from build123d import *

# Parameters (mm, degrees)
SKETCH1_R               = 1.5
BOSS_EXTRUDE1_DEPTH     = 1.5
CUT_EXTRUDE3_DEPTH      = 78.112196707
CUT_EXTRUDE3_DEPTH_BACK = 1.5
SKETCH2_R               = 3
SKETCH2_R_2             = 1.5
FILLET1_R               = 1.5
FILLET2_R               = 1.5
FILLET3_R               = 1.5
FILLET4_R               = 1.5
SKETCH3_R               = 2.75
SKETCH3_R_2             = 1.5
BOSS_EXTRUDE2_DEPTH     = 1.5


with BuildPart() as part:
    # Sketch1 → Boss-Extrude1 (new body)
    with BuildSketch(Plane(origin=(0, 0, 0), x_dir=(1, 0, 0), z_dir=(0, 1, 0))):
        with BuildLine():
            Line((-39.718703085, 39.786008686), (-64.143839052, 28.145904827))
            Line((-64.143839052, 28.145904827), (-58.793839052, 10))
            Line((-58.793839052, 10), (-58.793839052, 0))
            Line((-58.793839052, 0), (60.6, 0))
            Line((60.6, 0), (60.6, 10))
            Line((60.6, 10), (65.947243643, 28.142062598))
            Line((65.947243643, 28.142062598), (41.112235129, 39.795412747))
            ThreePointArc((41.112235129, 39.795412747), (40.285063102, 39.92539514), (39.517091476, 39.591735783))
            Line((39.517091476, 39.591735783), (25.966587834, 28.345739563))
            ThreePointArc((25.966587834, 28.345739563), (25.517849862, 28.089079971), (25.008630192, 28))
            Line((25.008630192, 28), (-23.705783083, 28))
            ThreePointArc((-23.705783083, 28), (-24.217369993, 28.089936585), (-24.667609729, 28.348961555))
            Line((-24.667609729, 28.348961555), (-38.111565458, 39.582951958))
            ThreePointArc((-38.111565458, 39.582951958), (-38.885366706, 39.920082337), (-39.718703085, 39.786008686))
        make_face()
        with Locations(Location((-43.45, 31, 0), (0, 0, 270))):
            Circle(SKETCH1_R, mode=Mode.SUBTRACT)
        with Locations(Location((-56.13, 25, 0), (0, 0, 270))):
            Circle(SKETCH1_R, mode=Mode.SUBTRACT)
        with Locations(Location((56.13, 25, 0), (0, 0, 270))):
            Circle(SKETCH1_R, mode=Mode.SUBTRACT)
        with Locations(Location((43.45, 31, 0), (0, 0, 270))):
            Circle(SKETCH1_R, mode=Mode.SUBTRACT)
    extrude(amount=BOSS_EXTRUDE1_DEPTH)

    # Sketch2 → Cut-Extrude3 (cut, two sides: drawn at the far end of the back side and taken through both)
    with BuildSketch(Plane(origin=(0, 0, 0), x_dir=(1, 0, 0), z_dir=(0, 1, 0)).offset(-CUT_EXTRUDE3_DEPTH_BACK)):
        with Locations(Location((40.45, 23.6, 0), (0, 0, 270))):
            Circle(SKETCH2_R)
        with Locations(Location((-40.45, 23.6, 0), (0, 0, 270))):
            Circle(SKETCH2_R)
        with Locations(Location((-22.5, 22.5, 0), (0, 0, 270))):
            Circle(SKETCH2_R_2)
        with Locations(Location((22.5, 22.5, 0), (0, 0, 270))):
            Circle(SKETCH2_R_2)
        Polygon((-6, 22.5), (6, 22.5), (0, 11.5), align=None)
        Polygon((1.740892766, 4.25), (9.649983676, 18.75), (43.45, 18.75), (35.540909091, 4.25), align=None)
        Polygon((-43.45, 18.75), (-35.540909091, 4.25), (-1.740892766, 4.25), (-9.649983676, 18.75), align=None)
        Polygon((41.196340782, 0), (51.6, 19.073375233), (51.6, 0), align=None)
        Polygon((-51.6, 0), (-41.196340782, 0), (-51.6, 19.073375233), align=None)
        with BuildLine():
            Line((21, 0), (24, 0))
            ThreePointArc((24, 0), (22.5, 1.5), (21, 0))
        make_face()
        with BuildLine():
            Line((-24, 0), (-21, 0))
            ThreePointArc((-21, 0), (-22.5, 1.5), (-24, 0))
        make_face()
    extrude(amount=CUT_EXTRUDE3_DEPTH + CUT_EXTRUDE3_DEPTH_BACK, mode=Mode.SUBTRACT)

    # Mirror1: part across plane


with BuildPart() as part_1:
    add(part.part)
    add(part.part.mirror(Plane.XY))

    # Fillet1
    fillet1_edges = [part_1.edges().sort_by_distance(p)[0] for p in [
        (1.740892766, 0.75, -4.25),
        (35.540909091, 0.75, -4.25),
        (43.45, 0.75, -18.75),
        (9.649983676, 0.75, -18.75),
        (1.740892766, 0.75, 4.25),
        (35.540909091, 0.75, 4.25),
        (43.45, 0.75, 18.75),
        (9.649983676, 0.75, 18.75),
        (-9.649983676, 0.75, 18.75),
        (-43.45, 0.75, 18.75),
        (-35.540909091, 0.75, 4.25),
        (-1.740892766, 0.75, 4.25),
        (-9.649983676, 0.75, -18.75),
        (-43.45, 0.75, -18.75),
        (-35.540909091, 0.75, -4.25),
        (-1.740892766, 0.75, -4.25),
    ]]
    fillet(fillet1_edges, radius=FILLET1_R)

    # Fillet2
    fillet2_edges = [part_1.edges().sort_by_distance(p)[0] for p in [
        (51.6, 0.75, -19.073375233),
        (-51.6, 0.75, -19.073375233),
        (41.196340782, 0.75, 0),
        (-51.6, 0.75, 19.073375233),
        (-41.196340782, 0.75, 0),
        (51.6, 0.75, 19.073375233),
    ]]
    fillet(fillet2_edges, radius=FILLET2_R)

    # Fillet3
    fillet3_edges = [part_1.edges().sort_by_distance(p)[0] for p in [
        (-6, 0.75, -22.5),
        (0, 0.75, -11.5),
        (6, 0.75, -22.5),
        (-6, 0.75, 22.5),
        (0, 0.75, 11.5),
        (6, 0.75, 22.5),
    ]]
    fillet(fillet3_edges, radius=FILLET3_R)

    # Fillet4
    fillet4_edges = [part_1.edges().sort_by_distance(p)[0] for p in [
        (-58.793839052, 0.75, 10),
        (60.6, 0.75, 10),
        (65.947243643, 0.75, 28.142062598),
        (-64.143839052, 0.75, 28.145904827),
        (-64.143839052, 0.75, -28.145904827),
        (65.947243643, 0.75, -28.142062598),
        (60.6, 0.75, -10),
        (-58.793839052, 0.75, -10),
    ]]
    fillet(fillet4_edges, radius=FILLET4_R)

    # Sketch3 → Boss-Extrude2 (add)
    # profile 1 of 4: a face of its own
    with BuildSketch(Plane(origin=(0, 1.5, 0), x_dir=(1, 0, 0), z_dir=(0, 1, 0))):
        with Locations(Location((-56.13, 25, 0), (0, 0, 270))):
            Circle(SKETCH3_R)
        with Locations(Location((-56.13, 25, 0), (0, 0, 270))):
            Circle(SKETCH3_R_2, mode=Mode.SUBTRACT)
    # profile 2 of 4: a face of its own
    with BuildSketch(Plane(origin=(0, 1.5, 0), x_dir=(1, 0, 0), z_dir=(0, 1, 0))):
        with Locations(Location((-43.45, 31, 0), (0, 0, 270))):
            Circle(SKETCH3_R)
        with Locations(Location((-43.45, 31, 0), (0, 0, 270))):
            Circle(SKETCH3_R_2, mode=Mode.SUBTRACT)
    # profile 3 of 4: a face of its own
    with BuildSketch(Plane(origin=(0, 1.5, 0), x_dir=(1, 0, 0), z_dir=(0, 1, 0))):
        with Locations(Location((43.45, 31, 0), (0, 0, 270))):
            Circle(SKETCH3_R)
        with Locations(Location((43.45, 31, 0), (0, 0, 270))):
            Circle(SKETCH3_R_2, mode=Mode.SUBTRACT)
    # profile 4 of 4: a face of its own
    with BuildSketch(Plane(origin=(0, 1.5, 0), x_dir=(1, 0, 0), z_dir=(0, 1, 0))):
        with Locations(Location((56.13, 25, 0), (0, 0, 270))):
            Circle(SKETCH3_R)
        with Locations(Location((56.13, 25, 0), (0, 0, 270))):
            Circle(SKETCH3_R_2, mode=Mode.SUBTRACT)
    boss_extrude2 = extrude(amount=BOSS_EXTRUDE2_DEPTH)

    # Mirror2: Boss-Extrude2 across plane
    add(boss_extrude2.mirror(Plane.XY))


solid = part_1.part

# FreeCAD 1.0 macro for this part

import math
import FreeCAD as App
import Part
import Sketcher
from FreeCAD import Vector


def edges_at(feature, points):
    """Names of the edges that pass closest to the given points."""
    edges = feature.Shape.Edges
    near = lambda p: min(range(len(edges)), key=lambda i: edges[i].distToShape(Part.Vertex(*p))[0])
    return sorted({f"Edge{near(p) + 1}" for p in points})


def add_polygon(sketch, points):
    """Adds a closed chain of lines whose ends are joined by coincident constraints."""
    first, n = sketch.GeometryCount, len(points)
    for a, b in zip(points, points[1:] + points[:1]):
        sketch.addGeometry(Part.LineSegment(App.Vector(*a, 0), App.Vector(*b, 0)), False)
    for i in range(n):
        sketch.addConstraint(Sketcher.Constraint("Coincident", first + i, 2, first + (i + 1) % n, 1))

doc = App.newDocument("Part")
params = doc.addObject("Spreadsheet::Sheet", "Params")
for row, (alias, value) in enumerate([
    ("sketch1_diameter", "3 mm"),
    ("sketch1_height", "10 mm"),
    ("pad1_length", "1.5 mm"),
    ("sketch2_diameter", "6 mm"),
    ("sketch2_diameter2", "3 mm"),
    ("sketch2_width", "12 mm"),
    ("fillet_radius", "1.5 mm"),
    ("fillet2_radius", "1.5 mm"),
    ("fillet3_radius", "1.5 mm"),
    ("fillet4_radius", "1.5 mm"),
    ("sketch3_diameter", "3 mm"),
    ("sketch3_diameter2", "5.5 mm"),
    ("pad2_length", "1.5 mm"),
], start=1):
    params.set(f"A{row}", alias)
    params.set(f"B{row}", "=" + value)
    params.setAlias(f"B{row}", alias)

body = doc.addObject("PartDesign::Body", "Body")

# Sketch on XZ plane
sketch1 = body.newObject("Sketcher::SketchObject", "Sketch")
sketch1.AttachmentSupport = (doc.getObject("XZ_Plane"), [""])
sketch1.MapMode = "FlatFace"
sketch1.addGeometry([
    Part.LineSegment(Vector(-39.7, -39.8, 0), Vector(-64.1, -28.1, 0)),  # 0
    Part.LineSegment(Vector(-64.1, -28.1, 0), Vector(-58.8, -10, 0)),  # 1
    Part.LineSegment(Vector(-58.8, -10, 0), Vector(-58.8, 0, 0)),  # 2
    Part.LineSegment(Vector(-58.8, 0, 0), Vector(60.6, 0, 0)),  # 3
    Part.LineSegment(Vector(60.6, 0, 0), Vector(60.6, -10, 0)),  # 4
    Part.LineSegment(Vector(60.6, -10, 0), Vector(65.9, -28.1, 0)),  # 5
    Part.LineSegment(Vector(65.9, -28.1, 0), Vector(41.1, -39.8, 0)),  # 6
    Part.ArcOfCircle(Part.Circle(Vector(40.5, -38.4, 0), Vector(0, 0, 1), 1.5), math.radians(-130), math.radians(-65)),  # 7
    Part.LineSegment(Vector(39.5, -39.6, 0), Vector(26, -28.3, 0)),  # 8
    Part.ArcOfCircle(Part.Circle(Vector(25, -29.5, 0), Vector(0, 0, 1), 1.5), math.radians(50), math.radians(90)),  # 9
    Part.LineSegment(Vector(25, -28, 0), Vector(-23.7, -28, 0)),  # 10
    Part.ArcOfCircle(Part.Circle(Vector(-23.7, -29.5, 0), Vector(0, 0, 1), 1.5), math.radians(90), math.radians(130)),  # 11
    Part.LineSegment(Vector(-24.7, -28.3, 0), Vector(-38.1, -39.6, 0)),  # 12
    Part.ArcOfCircle(Part.Circle(Vector(-39.1, -38.4, 0), Vector(0, 0, 1), 1.5), math.radians(-115), math.radians(-50)),  # 13
    Part.Circle(Vector(-56.1, -25, 0), Vector(0, 0, 1), 1.5),  # 14
    Part.Circle(Vector(56.1, -25, 0), Vector(0, 0, 1), 1.5),  # 15
    Part.Circle(Vector(-43.5, -31, 0), Vector(0, 0, 1), 1.5),  # 16
    Part.Circle(Vector(43.5, -31, 0), Vector(0, 0, 1), 1.5),  # 17
], False)
sketch1.addConstraint([
    Sketcher.Constraint("Coincident", 0, 2, 1, 1),
    Sketcher.Constraint("Coincident", 1, 2, 2, 1),
    Sketcher.Constraint("Coincident", 2, 2, 3, 1),
    Sketcher.Constraint("Coincident", 3, 2, 4, 1),
    Sketcher.Constraint("Coincident", 4, 2, 5, 1),
    Sketcher.Constraint("Coincident", 5, 2, 6, 1),
    Sketcher.Constraint("Tangent", 6, 2, 7, 2),
    Sketcher.Constraint("Tangent", 7, 1, 8, 1),
    Sketcher.Constraint("Tangent", 8, 2, 9, 1),
    Sketcher.Constraint("Tangent", 9, 2, 10, 1),
    Sketcher.Constraint("Tangent", 10, 2, 11, 1),
    Sketcher.Constraint("Tangent", 11, 2, 12, 1),
    Sketcher.Constraint("Tangent", 12, 2, 13, 2),
    Sketcher.Constraint("Tangent", 13, 1, 0, 1),
    Sketcher.Constraint("Vertical", 2),
    Sketcher.Constraint("Horizontal", 3),
    Sketcher.Constraint("Vertical", 4),
    Sketcher.Constraint("Horizontal", 10),
    Sketcher.Constraint("Equal", 7, 9),
    Sketcher.Constraint("Equal", 9, 11),
    Sketcher.Constraint("Equal", 11, 13),
    Sketcher.Constraint("Equal", 13, 14),
    Sketcher.Constraint("Equal", 14, 15),
    Sketcher.Constraint("Equal", 15, 16),
    Sketcher.Constraint("Equal", 16, 17),
    Sketcher.Constraint("Symmetric", 14, 3, 15, 3, -2),
    Sketcher.Constraint("Symmetric", 16, 3, 17, 3, -2),
    Sketcher.Constraint("PointOnObject", 2, 2, -1),
    Sketcher.Constraint("Horizontal", 1, 2, 4, 2),
    Sketcher.Constraint("Diameter", 14, 3.0),
    Sketcher.Constraint("DistanceY", 2, 1, 2, 2, 10.0),
    Sketcher.Constraint("DistanceY", 14, 3, -1, 1, 25.0),
    Sketcher.Constraint("DistanceY", 16, 3, -1, 1, 31.0),
    Sketcher.Constraint("DistanceY", 9, 2, -1, 1, 28.0),
    Sketcher.Constraint("DistanceX", -1, 1, 3, 2, 60.6),
    Sketcher.Constraint("DistanceX", 14, 3, -1, 1, 56.13),
    Sketcher.Constraint("DistanceX", 16, 3, -1, 1, 43.45),
    Sketcher.Constraint("DistanceX", 0, 2, 1, 2, 5.35),
    Sketcher.Constraint("DistanceX", 3, 1, 3, 2, 119.393839),
    Sketcher.Constraint("Distance", 1, 18.918149),
    Sketcher.Constraint("Distance", 6, 27.433159),
    Sketcher.Constraint("DistanceX", 10, 2, 10, 1, 48.714413),
    Sketcher.Constraint("DistanceX", -1, 1, 7, 3, 40.475049),
    Sketcher.Constraint("DistanceX", -1, 1, 9, 3, 25.00863),
    Sketcher.Constraint("DistanceX", -1, 1, 7, 1, 39.517091),
    Sketcher.Constraint("DistanceX", 11, 2, -1, 1, 24.66761),
    Sketcher.Constraint("DistanceY", 12, 2, -1, 1, 39.582952),
    Sketcher.Constraint("DistanceX", 6, 2, 5, 2, 24.835009),
])
sketch1.setExpression("Constraints[29]", "Params.sketch1_diameter")
sketch1.setExpression("Constraints[30]", "Params.sketch1_height")
pad1 = body.newObject("PartDesign::Pad", "Pad")
pad1.Profile = sketch1
pad1.setExpression("Length", "Params.pad1_length")
pad1.Reversed = True

# Sketch on XZ plane
sketch2 = body.newObject("Sketcher::SketchObject", "Sketch001")
sketch2.AttachmentSupport = (doc.getObject("XZ_Plane"), [""])
sketch2.MapMode = "FlatFace"
sketch2.addGeometry(Part.Circle(Vector(40.5, -23.6, 0), Vector(0, 0, 1), 3), False)  # 0
sketch2.addGeometry(Part.Circle(Vector(-40.5, -23.6, 0), Vector(0, 0, 1), 3), False)  # 1
sketch2.addGeometry(Part.Circle(Vector(-22.5, -22.5, 0), Vector(0, 0, 1), 1.5), False)  # 2
sketch2.addGeometry(Part.Circle(Vector(22.5, -22.5, 0), Vector(0, 0, 1), 1.5), False)  # 3
add_polygon(sketch2, [(6, -22.5), (-6, -22.5), (0, -11.5)])  # lines 4-6
add_polygon(sketch2, [(9.6, -18.8), (1.7, -4.2), (35.5, -4.2), (43.5, -18.8)])  # lines 7-10
add_polygon(sketch2, [(-43.5, -18.8), (-35.5, -4.2), (-1.7, -4.2), (-9.6, -18.8)])  # lines 11-14
add_polygon(sketch2, [(51.6, -19.1), (41.2, 0), (51.6, 0)])  # lines 15-17
add_polygon(sketch2, [(-51.6, 0), (-41.2, 0), (-51.6, -19.1)])  # lines 18-20
sketch2.addGeometry(Part.LineSegment(Vector(21, 0, 0), Vector(24, 0, 0)), False)  # 21
sketch2.addGeometry(Part.ArcOfCircle(Part.Circle(Vector(22.5, 0, 0), Vector(0, 0, 1), 1.5), math.radians(180), math.radians(360)), False)  # 22
sketch2.addGeometry(Part.LineSegment(Vector(-24, 0, 0), Vector(-21, 0, 0)), False)  # 23
sketch2.addGeometry(Part.ArcOfCircle(Part.Circle(Vector(-22.5, 0, 0), Vector(0, 0, 1), 1.5), math.radians(180), math.radians(360)), False)  # 24
sketch2.addConstraint([
    Sketcher.Constraint("Coincident", 21, 1, 22, 1),
    Sketcher.Constraint("Coincident", 22, 2, 21, 2),
    Sketcher.Constraint("Coincident", 23, 1, 24, 1),
    Sketcher.Constraint("Coincident", 24, 2, 23, 2),
    Sketcher.Constraint("Horizontal", 4),
    Sketcher.Constraint("Horizontal", 8),
    Sketcher.Constraint("Horizontal", 10),
    Sketcher.Constraint("Horizontal", 12),
    Sketcher.Constraint("Horizontal", 14),
    Sketcher.Constraint("Horizontal", 16),
    Sketcher.Constraint("Vertical", 17),
    Sketcher.Constraint("Horizontal", 18),
    Sketcher.Constraint("Vertical", 20),
    Sketcher.Constraint("Horizontal", 21),
    Sketcher.Constraint("Horizontal", 23),
    Sketcher.Constraint("Equal", 0, 1),
    Sketcher.Constraint("Equal", 2, 3),
    Sketcher.Constraint("Equal", 3, 22),
    Sketcher.Constraint("Equal", 22, 24),
    Sketcher.Constraint("Symmetric", 22, 3, 24, 3, -1, 1),
    Sketcher.Constraint("Symmetric", 15, 2, 18, 2, -1, 1),
    Sketcher.Constraint("Symmetric", 0, 3, 1, 3, -2),
    Sketcher.Constraint("Symmetric", 2, 3, 3, 3, -2),
    Sketcher.Constraint("Symmetric", 8, 2, 11, 2, -2),
    Sketcher.Constraint("Symmetric", 10, 2, 13, 2, -2),
    Sketcher.Constraint("Symmetric", 17, 2, 19, 2, -2),
    Sketcher.Constraint("PointOnObject", 22, 3, -1),
    Sketcher.Constraint("PointOnObject", 5, 2, -2),
    Sketcher.Constraint("PointOnObject", 15, 2, -1),
    Sketcher.Constraint("PointOnObject", 21, 1, -1),
    Sketcher.Constraint("PointOnObject", 23, 1, -1),
    Sketcher.Constraint("Parallel", 6, 7),
    Sketcher.Constraint("Parallel", 7, 9),
    Sketcher.Constraint("Parallel", 5, 11),
    Sketcher.Constraint("Parallel", 11, 13),
    Sketcher.Constraint("Parallel", 9, 15),
    Sketcher.Constraint("Parallel", 13, 19),
    Sketcher.Constraint("Horizontal", 3, 3, 4, 2),
    Sketcher.Constraint("Vertical", 3, 3, 22, 3),
    Sketcher.Constraint("Diameter", 0, 6.0),
    Sketcher.Constraint("Diameter", 2, 3.0),
    Sketcher.Constraint("DistanceX", 4, 2, 4, 1, 12.0),
    Sketcher.Constraint("DistanceX", -1, 1, 21, 1, 21.0),
    Sketcher.Constraint("DistanceY", 4, 2, 5, 2, 11.0),
    Sketcher.Constraint("DistanceX", 0, 3, 9, 2, 3.0),
    Sketcher.Constraint("DistanceY", 0, 3, -1, 1, 23.6),
    Sketcher.Constraint("DistanceY", 2, 3, -1, 1, 22.5),
    Sketcher.Constraint("DistanceX", -1, 1, 16, 2, 51.6),
    Sketcher.Constraint("DistanceX", 1, 3, 0, 3, 80.9),
    Sketcher.Constraint("DistanceY", 9, 2, 8, 2, 14.5),
    Sketcher.Constraint("DistanceY", 7, 2, -1, 1, 4.25),
    Sketcher.Constraint("DistanceX", 16, 1, 16, 2, 10.403659),
    Sketcher.Constraint("DistanceX", 8, 1, 8, 2, 33.800016),
])
sketch2.setExpression("Constraints[56]", "Params.sketch2_diameter")
sketch2.setExpression("Constraints[57]", "Params.sketch2_diameter2")
sketch2.setExpression("Constraints[58]", "Params.sketch2_width")
pocket1 = body.newObject("PartDesign::Pocket", "Pocket")
pocket1.Profile = sketch2
pocket1.Type = "ThroughAll"
pocket1.Midplane = True
body2 = doc.addObject("PartDesign::Body", "Body001")
doc.recompute()

body2.BaseFeature = body
doc.recompute()

mirroring = doc.addObject("Part::Mirroring", "Mirroring")
mirroring.Source = body
mirroring.Base = Vector(0, 0, 0)
mirroring.Normal = Vector(0, 0, 1)
body3 = doc.addObject("PartDesign::Body", "Body002")
body3.BaseFeature = mirroring
boolean = body2.newObject("PartDesign::Boolean", "Boolean")
boolean.Type = "Fuse"
boolean.addObjects([body3])
doc.recompute()

fillet = body2.newObject("PartDesign::Fillet", "Fillet")
fillet.Base = (boolean, edges_at(boolean, [
    (1.741, 0.75, -4.25),
    (35.541, 0.75, -4.25),
    (43.45, 0.75, -18.75),
    (9.65, 0.75, -18.75),
    (1.741, 0.75, 4.25),
    (35.541, 0.75, 4.25),
    (43.45, 0.75, 18.75),
    (9.65, 0.75, 18.75),
    (-9.65, 0.75, 18.75),
    (-43.45, 0.75, 18.75),
    (-35.541, 0.75, 4.25),
    (-1.741, 0.75, 4.25),
    (-9.65, 0.75, -18.75),
    (-43.45, 0.75, -18.75),
    (-35.541, 0.75, -4.25),
    (-1.741, 0.75, -4.25),
]))
fillet.setExpression("Radius", "Params.fillet_radius")
doc.recompute()

fillet2 = body2.newObject("PartDesign::Fillet", "Fillet001")
fillet2.Base = (fillet, edges_at(fillet, [
    (51.6, 0.75, -19.073),
    (-51.6, 0.75, -19.073),
    (41.196, 0.75, 0),
    (-51.6, 0.75, 19.073),
    (-41.196, 0.75, 0),
    (51.6, 0.75, 19.073),
]))
fillet2.setExpression("Radius", "Params.fillet2_radius")
doc.recompute()

fillet3 = body2.newObject("PartDesign::Fillet", "Fillet002")
fillet3.Base = (fillet2, edges_at(fillet2, [
    (-6, 0.75, -22.5),
    (0, 0.75, -11.5),
    (6, 0.75, -22.5),
    (-6, 0.75, 22.5),
    (0, 0.75, 11.5),
    (6, 0.75, 22.5),
]))
fillet3.setExpression("Radius", "Params.fillet3_radius")
doc.recompute()

fillet4 = body2.newObject("PartDesign::Fillet", "Fillet003")
fillet4.Base = (fillet3, edges_at(fillet3, [
    (-58.794, 0.75, 10),
    (60.6, 0.75, 10),
    (65.947, 0.75, 28.142),
    (-64.144, 0.75, 28.146),
    (-64.144, 0.75, -28.146),
    (65.947, 0.75, -28.142),
    (60.6, 0.75, -10),
    (-58.794, 0.75, -10),
]))
fillet4.setExpression("Radius", "Params.fillet4_radius")

# Sketch on XZ plane
sketch3 = body2.newObject("Sketcher::SketchObject", "Sketch002")
sketch3.AttachmentSupport = (doc.getObject("XZ_Plane001"), [""])
sketch3.MapMode = "FlatFace"
sketch3.AttachmentOffset = App.Placement(Vector(0, 0, -1.5), App.Rotation())
sketch3.addGeometry([
    Part.Circle(Vector(-56.1, -25, 0), Vector(0, 0, 1), 2.8),  # 0
    Part.Circle(Vector(-56.1, -25, 0), Vector(0, 0, 1), 1.5),  # 1
    Part.Circle(Vector(-43.5, -31, 0), Vector(0, 0, 1), 2.8),  # 2
    Part.Circle(Vector(-43.5, -31, 0), Vector(0, 0, 1), 1.5),  # 3
    Part.Circle(Vector(43.5, -31, 0), Vector(0, 0, 1), 2.8),  # 4
    Part.Circle(Vector(43.5, -31, 0), Vector(0, 0, 1), 1.5),  # 5
    Part.Circle(Vector(56.1, -25, 0), Vector(0, 0, 1), 2.8),  # 6
    Part.Circle(Vector(56.1, -25, 0), Vector(0, 0, 1), 1.5),  # 7
], False)
sketch3.addConstraint([
    Sketcher.Constraint("Coincident", 1, 3, 0, 3),
    Sketcher.Constraint("Coincident", 3, 3, 2, 3),
    Sketcher.Constraint("Coincident", 5, 3, 4, 3),
    Sketcher.Constraint("Coincident", 7, 3, 6, 3),
    Sketcher.Constraint("Equal", 0, 2),
    Sketcher.Constraint("Equal", 1, 3),
    Sketcher.Constraint("Equal", 2, 4),
    Sketcher.Constraint("Equal", 3, 5),
    Sketcher.Constraint("Equal", 4, 6),
    Sketcher.Constraint("Equal", 5, 7),
    Sketcher.Constraint("Symmetric", 2, 3, 4, 3, -2),
    Sketcher.Constraint("Symmetric", 0, 3, 6, 3, -2),
    Sketcher.Constraint("Diameter", 1, 3.0),
    Sketcher.Constraint("Diameter", 0, 5.5),
    Sketcher.Constraint("DistanceY", 0, 3, -1, 1, 25.0),
    Sketcher.Constraint("DistanceY", 2, 3, -1, 1, 31.0),
    Sketcher.Constraint("DistanceX", 2, 3, 4, 3, 86.9),
    Sketcher.Constraint("DistanceX", 0, 3, -1, 1, 56.13),
])
sketch3.setExpression("Constraints[12]", "Params.sketch3_diameter")
sketch3.setExpression("Constraints[13]", "Params.sketch3_diameter2")
pad2 = body2.newObject("PartDesign::Pad", "Pad001")
pad2.Profile = sketch3
pad2.setExpression("Length", "Params.pad2_length")
pad2.Reversed = True
doc.recompute()

mirrored = body2.newObject("PartDesign::Mirrored", "Mirrored")
mirrored.Originals = [pad2]
mirrored.MirrorPlane = (doc.getObject("XY_Plane001"), [""])
body2.Tip = mirrored
mirroring.Visibility = False

doc.recompute()
